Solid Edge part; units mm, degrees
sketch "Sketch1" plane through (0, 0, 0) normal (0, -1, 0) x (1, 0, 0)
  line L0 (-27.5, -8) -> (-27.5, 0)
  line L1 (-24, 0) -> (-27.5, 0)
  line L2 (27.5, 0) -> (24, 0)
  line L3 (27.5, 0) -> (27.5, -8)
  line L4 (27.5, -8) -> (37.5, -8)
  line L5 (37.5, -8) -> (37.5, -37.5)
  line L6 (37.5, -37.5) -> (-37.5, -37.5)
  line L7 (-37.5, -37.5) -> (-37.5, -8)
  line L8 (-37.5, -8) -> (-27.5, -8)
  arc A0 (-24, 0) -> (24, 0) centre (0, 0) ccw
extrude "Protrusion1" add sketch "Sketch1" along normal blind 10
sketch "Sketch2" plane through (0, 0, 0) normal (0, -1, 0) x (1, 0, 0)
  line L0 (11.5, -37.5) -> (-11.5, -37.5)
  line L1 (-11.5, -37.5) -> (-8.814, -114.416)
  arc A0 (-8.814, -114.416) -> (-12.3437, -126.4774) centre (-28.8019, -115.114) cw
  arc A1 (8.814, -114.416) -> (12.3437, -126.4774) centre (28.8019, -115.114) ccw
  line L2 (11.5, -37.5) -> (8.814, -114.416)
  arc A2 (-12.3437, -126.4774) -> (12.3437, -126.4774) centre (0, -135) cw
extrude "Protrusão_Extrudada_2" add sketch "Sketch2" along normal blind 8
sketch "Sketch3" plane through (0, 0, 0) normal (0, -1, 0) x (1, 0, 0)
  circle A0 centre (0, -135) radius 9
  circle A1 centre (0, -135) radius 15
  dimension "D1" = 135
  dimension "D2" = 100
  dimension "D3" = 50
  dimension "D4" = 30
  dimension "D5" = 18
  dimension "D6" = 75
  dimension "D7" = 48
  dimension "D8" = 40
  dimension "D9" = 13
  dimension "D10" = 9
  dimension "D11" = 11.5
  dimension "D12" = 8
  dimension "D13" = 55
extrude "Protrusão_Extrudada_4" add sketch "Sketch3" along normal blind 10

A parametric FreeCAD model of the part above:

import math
import FreeCAD as App
import Part
import Sketcher
Q = App.Units.Quantity

doc = App.newDocument("Part")
body = doc.addObject("PartDesign::Body", "Body")

# Sketch on XZ plane
sketch1 = doc.addObject("Sketcher::SketchObject", "Sketch")
body.addObject(sketch1)
sketch1.AttachmentSupport = (doc.XZ_Plane, [""])
sketch1.MapMode = "FlatFace"
sketch1.addGeometry([
    Part.LineSegment(App.Vector(-27.5, 0, 0), App.Vector(-27.5, -8, 0)),  # 0
    Part.LineSegment(App.Vector(-27.5, -8, 0), App.Vector(-37.5, -8, 0)),  # 1
    Part.LineSegment(App.Vector(-37.5, -8, 0), App.Vector(-37.5, -37.5, 0)),  # 2
    Part.LineSegment(App.Vector(-37.5, -37.5, 0), App.Vector(37.5, -37.5, 0)),  # 3
    Part.LineSegment(App.Vector(37.5, -37.5, 0), App.Vector(37.5, -8, 0)),  # 4
    Part.LineSegment(App.Vector(37.5, -8, 0), App.Vector(27.5, -8, 0)),  # 5
    Part.LineSegment(App.Vector(27.5, -8, 0), App.Vector(27.5, 0, 0)),  # 6
    Part.LineSegment(App.Vector(27.5, 0, 0), App.Vector(24, 0, 0)),  # 7
    Part.ArcOfCircle(Part.Circle(App.Vector(0, 0, 0), App.Vector(0, 0, 1), 24), math.radians(180), math.radians(360)),  # 8
    Part.LineSegment(App.Vector(-24, 0, 0), App.Vector(-27.5, 0, 0)),  # 9
], False)
sketch1.addConstraint([
    Sketcher.Constraint("Coincident", 0, 2, 1, 1),
    Sketcher.Constraint("Coincident", 1, 2, 2, 1),
    Sketcher.Constraint("Coincident", 2, 2, 3, 1),
    Sketcher.Constraint("Coincident", 3, 2, 4, 1),
    Sketcher.Constraint("Coincident", 4, 2, 5, 1),
    Sketcher.Constraint("Coincident", 5, 2, 6, 1),
    Sketcher.Constraint("Coincident", 6, 2, 7, 1),
    Sketcher.Constraint("Coincident", 7, 2, 8, 2),
    Sketcher.Constraint("Coincident", 8, 1, 9, 1),
    Sketcher.Constraint("Coincident", 9, 2, 0, 1),
    Sketcher.Constraint("Vertical", 0),
    Sketcher.Constraint("Horizontal", 1),
    Sketcher.Constraint("Vertical", 2),
    Sketcher.Constraint("Horizontal", 3),
    Sketcher.Constraint("Vertical", 4),
    Sketcher.Constraint("Horizontal", 5),
    Sketcher.Constraint("Vertical", 6),
    Sketcher.Constraint("Horizontal", 7),
    Sketcher.Constraint("Horizontal", 9),
    Sketcher.Constraint("Coincident", 8, 3, -1, 1),
    Sketcher.Constraint("Symmetric", 6, 2, 9, 2, -1, 1),
    Sketcher.Constraint("Symmetric", 1, 2, 4, 2, -2),
    Sketcher.Constraint("PointOnObject", 6, 2, -1),
    Sketcher.Constraint("Radius", 8, Q("24 mm")),
    Sketcher.Constraint("DistanceX", 1, 2, 1, 1, Q("10 mm")),
    Sketcher.Constraint("DistanceX", 3, 1, 3, 2, Q("75 mm")),
    Sketcher.Constraint("DistanceY", 0, 2, 0, 1, Q("8 mm")),
    Sketcher.Constraint("DistanceY", 2, 2, 2, 1, Q("29.5 mm")),
])
pad1 = doc.addObject("PartDesign::Pad", "Pad")
body.addObject(pad1)
pad1.Profile = sketch1
pad1.Length = 10

# Sketch on XZ plane
sketch2 = doc.addObject("Sketcher::SketchObject", "Sketch001")
body.addObject(sketch2)
sketch2.AttachmentSupport = (doc.XZ_Plane, [""])
sketch2.MapMode = "FlatFace"
sketch2.addGeometry([
    Part.LineSegment(App.Vector(9, -114, 0), App.Vector(12, -38, 0)),  # 0
    Part.LineSegment(App.Vector(12, -38, 0), App.Vector(-12, -38, 0)),  # 1
    Part.LineSegment(App.Vector(-12, -38, 0), App.Vector(-9, -114, 0)),  # 2
    Part.ArcOfCircle(Part.Circle(App.Vector(-29, -115, 0), App.Vector(0, 0, 1), 20), math.radians(-35), math.radians(2)),  # 3
    Part.ArcOfCircle(Part.Circle(App.Vector(0, -135, 0), App.Vector(0, 0, 1), 15), math.radians(35), math.radians(145)),  # 4
    Part.ArcOfCircle(Part.Circle(App.Vector(29, -115, 0), App.Vector(0, 0, 1), 20), math.radians(178), math.radians(215)),  # 5
], False)
sketch2.addConstraint([
    Sketcher.Constraint("Coincident", 0, 2, 1, 1),
    Sketcher.Constraint("Coincident", 1, 2, 2, 1),
    Sketcher.Constraint("Tangent", 2, 2, 3, 2),
    Sketcher.Constraint("Tangent", 3, 1, 4, 2),
    Sketcher.Constraint("Tangent", 4, 1, 5, 2),
    Sketcher.Constraint("Tangent", 5, 1, 0, 1),
    Sketcher.Constraint("Horizontal", 1),
    Sketcher.Constraint("Equal", 3, 5),
    Sketcher.Constraint("Symmetric", 3, 3, 5, 3, -2),
    Sketcher.Constraint("Horizontal", 2, 2, 5, 1),
    Sketcher.Constraint("Radius", 4, Q("15 mm")),
    Sketcher.Constraint("DistanceX", 1, 2, 1, 1, Q("23 mm")),
    Sketcher.Constraint("Angle", 0, Q("88 deg")),
    Sketcher.Constraint("DistanceY", 4, 3, -1, 1, Q("135 mm")),
    Sketcher.Constraint("Radius", 3, Q("19.999 mm")),
    Sketcher.Constraint("DistanceY", 0, 2, -1, 1, Q("37.5 mm")),
])
pad2 = doc.addObject("PartDesign::Pad", "Pad001")
body.addObject(pad2)
pad2.Profile = sketch2
pad2.Length = 8

# Sketch on XZ plane
sketch3 = doc.addObject("Sketcher::SketchObject", "Sketch002")
body.addObject(sketch3)
sketch3.AttachmentSupport = (doc.XZ_Plane, [""])
sketch3.MapMode = "FlatFace"
sketch3.addGeometry([
    Part.Circle(App.Vector(0, -135, 0), App.Vector(0, 0, 1), 15),
    Part.Circle(App.Vector(0, -135, 0), App.Vector(0, 0, 1), 9),
], False)
sketch3.addConstraint([
    Sketcher.Constraint("Coincident", 1, 3, 0, 3),
    Sketcher.Constraint("PointOnObject", 0, 3, -2),
    Sketcher.Constraint("Diameter", 0, Q("30 mm")),
    Sketcher.Constraint("Diameter", 1, Q("18 mm")),
    Sketcher.Constraint("DistanceY", 0, 3, -1, 1, Q("135 mm")),
])
pad3 = doc.addObject("PartDesign::Pad", "Pad002")
body.addObject(pad3)
pad3.Profile = sketch3
pad3.Length = 10

doc.recompute()
